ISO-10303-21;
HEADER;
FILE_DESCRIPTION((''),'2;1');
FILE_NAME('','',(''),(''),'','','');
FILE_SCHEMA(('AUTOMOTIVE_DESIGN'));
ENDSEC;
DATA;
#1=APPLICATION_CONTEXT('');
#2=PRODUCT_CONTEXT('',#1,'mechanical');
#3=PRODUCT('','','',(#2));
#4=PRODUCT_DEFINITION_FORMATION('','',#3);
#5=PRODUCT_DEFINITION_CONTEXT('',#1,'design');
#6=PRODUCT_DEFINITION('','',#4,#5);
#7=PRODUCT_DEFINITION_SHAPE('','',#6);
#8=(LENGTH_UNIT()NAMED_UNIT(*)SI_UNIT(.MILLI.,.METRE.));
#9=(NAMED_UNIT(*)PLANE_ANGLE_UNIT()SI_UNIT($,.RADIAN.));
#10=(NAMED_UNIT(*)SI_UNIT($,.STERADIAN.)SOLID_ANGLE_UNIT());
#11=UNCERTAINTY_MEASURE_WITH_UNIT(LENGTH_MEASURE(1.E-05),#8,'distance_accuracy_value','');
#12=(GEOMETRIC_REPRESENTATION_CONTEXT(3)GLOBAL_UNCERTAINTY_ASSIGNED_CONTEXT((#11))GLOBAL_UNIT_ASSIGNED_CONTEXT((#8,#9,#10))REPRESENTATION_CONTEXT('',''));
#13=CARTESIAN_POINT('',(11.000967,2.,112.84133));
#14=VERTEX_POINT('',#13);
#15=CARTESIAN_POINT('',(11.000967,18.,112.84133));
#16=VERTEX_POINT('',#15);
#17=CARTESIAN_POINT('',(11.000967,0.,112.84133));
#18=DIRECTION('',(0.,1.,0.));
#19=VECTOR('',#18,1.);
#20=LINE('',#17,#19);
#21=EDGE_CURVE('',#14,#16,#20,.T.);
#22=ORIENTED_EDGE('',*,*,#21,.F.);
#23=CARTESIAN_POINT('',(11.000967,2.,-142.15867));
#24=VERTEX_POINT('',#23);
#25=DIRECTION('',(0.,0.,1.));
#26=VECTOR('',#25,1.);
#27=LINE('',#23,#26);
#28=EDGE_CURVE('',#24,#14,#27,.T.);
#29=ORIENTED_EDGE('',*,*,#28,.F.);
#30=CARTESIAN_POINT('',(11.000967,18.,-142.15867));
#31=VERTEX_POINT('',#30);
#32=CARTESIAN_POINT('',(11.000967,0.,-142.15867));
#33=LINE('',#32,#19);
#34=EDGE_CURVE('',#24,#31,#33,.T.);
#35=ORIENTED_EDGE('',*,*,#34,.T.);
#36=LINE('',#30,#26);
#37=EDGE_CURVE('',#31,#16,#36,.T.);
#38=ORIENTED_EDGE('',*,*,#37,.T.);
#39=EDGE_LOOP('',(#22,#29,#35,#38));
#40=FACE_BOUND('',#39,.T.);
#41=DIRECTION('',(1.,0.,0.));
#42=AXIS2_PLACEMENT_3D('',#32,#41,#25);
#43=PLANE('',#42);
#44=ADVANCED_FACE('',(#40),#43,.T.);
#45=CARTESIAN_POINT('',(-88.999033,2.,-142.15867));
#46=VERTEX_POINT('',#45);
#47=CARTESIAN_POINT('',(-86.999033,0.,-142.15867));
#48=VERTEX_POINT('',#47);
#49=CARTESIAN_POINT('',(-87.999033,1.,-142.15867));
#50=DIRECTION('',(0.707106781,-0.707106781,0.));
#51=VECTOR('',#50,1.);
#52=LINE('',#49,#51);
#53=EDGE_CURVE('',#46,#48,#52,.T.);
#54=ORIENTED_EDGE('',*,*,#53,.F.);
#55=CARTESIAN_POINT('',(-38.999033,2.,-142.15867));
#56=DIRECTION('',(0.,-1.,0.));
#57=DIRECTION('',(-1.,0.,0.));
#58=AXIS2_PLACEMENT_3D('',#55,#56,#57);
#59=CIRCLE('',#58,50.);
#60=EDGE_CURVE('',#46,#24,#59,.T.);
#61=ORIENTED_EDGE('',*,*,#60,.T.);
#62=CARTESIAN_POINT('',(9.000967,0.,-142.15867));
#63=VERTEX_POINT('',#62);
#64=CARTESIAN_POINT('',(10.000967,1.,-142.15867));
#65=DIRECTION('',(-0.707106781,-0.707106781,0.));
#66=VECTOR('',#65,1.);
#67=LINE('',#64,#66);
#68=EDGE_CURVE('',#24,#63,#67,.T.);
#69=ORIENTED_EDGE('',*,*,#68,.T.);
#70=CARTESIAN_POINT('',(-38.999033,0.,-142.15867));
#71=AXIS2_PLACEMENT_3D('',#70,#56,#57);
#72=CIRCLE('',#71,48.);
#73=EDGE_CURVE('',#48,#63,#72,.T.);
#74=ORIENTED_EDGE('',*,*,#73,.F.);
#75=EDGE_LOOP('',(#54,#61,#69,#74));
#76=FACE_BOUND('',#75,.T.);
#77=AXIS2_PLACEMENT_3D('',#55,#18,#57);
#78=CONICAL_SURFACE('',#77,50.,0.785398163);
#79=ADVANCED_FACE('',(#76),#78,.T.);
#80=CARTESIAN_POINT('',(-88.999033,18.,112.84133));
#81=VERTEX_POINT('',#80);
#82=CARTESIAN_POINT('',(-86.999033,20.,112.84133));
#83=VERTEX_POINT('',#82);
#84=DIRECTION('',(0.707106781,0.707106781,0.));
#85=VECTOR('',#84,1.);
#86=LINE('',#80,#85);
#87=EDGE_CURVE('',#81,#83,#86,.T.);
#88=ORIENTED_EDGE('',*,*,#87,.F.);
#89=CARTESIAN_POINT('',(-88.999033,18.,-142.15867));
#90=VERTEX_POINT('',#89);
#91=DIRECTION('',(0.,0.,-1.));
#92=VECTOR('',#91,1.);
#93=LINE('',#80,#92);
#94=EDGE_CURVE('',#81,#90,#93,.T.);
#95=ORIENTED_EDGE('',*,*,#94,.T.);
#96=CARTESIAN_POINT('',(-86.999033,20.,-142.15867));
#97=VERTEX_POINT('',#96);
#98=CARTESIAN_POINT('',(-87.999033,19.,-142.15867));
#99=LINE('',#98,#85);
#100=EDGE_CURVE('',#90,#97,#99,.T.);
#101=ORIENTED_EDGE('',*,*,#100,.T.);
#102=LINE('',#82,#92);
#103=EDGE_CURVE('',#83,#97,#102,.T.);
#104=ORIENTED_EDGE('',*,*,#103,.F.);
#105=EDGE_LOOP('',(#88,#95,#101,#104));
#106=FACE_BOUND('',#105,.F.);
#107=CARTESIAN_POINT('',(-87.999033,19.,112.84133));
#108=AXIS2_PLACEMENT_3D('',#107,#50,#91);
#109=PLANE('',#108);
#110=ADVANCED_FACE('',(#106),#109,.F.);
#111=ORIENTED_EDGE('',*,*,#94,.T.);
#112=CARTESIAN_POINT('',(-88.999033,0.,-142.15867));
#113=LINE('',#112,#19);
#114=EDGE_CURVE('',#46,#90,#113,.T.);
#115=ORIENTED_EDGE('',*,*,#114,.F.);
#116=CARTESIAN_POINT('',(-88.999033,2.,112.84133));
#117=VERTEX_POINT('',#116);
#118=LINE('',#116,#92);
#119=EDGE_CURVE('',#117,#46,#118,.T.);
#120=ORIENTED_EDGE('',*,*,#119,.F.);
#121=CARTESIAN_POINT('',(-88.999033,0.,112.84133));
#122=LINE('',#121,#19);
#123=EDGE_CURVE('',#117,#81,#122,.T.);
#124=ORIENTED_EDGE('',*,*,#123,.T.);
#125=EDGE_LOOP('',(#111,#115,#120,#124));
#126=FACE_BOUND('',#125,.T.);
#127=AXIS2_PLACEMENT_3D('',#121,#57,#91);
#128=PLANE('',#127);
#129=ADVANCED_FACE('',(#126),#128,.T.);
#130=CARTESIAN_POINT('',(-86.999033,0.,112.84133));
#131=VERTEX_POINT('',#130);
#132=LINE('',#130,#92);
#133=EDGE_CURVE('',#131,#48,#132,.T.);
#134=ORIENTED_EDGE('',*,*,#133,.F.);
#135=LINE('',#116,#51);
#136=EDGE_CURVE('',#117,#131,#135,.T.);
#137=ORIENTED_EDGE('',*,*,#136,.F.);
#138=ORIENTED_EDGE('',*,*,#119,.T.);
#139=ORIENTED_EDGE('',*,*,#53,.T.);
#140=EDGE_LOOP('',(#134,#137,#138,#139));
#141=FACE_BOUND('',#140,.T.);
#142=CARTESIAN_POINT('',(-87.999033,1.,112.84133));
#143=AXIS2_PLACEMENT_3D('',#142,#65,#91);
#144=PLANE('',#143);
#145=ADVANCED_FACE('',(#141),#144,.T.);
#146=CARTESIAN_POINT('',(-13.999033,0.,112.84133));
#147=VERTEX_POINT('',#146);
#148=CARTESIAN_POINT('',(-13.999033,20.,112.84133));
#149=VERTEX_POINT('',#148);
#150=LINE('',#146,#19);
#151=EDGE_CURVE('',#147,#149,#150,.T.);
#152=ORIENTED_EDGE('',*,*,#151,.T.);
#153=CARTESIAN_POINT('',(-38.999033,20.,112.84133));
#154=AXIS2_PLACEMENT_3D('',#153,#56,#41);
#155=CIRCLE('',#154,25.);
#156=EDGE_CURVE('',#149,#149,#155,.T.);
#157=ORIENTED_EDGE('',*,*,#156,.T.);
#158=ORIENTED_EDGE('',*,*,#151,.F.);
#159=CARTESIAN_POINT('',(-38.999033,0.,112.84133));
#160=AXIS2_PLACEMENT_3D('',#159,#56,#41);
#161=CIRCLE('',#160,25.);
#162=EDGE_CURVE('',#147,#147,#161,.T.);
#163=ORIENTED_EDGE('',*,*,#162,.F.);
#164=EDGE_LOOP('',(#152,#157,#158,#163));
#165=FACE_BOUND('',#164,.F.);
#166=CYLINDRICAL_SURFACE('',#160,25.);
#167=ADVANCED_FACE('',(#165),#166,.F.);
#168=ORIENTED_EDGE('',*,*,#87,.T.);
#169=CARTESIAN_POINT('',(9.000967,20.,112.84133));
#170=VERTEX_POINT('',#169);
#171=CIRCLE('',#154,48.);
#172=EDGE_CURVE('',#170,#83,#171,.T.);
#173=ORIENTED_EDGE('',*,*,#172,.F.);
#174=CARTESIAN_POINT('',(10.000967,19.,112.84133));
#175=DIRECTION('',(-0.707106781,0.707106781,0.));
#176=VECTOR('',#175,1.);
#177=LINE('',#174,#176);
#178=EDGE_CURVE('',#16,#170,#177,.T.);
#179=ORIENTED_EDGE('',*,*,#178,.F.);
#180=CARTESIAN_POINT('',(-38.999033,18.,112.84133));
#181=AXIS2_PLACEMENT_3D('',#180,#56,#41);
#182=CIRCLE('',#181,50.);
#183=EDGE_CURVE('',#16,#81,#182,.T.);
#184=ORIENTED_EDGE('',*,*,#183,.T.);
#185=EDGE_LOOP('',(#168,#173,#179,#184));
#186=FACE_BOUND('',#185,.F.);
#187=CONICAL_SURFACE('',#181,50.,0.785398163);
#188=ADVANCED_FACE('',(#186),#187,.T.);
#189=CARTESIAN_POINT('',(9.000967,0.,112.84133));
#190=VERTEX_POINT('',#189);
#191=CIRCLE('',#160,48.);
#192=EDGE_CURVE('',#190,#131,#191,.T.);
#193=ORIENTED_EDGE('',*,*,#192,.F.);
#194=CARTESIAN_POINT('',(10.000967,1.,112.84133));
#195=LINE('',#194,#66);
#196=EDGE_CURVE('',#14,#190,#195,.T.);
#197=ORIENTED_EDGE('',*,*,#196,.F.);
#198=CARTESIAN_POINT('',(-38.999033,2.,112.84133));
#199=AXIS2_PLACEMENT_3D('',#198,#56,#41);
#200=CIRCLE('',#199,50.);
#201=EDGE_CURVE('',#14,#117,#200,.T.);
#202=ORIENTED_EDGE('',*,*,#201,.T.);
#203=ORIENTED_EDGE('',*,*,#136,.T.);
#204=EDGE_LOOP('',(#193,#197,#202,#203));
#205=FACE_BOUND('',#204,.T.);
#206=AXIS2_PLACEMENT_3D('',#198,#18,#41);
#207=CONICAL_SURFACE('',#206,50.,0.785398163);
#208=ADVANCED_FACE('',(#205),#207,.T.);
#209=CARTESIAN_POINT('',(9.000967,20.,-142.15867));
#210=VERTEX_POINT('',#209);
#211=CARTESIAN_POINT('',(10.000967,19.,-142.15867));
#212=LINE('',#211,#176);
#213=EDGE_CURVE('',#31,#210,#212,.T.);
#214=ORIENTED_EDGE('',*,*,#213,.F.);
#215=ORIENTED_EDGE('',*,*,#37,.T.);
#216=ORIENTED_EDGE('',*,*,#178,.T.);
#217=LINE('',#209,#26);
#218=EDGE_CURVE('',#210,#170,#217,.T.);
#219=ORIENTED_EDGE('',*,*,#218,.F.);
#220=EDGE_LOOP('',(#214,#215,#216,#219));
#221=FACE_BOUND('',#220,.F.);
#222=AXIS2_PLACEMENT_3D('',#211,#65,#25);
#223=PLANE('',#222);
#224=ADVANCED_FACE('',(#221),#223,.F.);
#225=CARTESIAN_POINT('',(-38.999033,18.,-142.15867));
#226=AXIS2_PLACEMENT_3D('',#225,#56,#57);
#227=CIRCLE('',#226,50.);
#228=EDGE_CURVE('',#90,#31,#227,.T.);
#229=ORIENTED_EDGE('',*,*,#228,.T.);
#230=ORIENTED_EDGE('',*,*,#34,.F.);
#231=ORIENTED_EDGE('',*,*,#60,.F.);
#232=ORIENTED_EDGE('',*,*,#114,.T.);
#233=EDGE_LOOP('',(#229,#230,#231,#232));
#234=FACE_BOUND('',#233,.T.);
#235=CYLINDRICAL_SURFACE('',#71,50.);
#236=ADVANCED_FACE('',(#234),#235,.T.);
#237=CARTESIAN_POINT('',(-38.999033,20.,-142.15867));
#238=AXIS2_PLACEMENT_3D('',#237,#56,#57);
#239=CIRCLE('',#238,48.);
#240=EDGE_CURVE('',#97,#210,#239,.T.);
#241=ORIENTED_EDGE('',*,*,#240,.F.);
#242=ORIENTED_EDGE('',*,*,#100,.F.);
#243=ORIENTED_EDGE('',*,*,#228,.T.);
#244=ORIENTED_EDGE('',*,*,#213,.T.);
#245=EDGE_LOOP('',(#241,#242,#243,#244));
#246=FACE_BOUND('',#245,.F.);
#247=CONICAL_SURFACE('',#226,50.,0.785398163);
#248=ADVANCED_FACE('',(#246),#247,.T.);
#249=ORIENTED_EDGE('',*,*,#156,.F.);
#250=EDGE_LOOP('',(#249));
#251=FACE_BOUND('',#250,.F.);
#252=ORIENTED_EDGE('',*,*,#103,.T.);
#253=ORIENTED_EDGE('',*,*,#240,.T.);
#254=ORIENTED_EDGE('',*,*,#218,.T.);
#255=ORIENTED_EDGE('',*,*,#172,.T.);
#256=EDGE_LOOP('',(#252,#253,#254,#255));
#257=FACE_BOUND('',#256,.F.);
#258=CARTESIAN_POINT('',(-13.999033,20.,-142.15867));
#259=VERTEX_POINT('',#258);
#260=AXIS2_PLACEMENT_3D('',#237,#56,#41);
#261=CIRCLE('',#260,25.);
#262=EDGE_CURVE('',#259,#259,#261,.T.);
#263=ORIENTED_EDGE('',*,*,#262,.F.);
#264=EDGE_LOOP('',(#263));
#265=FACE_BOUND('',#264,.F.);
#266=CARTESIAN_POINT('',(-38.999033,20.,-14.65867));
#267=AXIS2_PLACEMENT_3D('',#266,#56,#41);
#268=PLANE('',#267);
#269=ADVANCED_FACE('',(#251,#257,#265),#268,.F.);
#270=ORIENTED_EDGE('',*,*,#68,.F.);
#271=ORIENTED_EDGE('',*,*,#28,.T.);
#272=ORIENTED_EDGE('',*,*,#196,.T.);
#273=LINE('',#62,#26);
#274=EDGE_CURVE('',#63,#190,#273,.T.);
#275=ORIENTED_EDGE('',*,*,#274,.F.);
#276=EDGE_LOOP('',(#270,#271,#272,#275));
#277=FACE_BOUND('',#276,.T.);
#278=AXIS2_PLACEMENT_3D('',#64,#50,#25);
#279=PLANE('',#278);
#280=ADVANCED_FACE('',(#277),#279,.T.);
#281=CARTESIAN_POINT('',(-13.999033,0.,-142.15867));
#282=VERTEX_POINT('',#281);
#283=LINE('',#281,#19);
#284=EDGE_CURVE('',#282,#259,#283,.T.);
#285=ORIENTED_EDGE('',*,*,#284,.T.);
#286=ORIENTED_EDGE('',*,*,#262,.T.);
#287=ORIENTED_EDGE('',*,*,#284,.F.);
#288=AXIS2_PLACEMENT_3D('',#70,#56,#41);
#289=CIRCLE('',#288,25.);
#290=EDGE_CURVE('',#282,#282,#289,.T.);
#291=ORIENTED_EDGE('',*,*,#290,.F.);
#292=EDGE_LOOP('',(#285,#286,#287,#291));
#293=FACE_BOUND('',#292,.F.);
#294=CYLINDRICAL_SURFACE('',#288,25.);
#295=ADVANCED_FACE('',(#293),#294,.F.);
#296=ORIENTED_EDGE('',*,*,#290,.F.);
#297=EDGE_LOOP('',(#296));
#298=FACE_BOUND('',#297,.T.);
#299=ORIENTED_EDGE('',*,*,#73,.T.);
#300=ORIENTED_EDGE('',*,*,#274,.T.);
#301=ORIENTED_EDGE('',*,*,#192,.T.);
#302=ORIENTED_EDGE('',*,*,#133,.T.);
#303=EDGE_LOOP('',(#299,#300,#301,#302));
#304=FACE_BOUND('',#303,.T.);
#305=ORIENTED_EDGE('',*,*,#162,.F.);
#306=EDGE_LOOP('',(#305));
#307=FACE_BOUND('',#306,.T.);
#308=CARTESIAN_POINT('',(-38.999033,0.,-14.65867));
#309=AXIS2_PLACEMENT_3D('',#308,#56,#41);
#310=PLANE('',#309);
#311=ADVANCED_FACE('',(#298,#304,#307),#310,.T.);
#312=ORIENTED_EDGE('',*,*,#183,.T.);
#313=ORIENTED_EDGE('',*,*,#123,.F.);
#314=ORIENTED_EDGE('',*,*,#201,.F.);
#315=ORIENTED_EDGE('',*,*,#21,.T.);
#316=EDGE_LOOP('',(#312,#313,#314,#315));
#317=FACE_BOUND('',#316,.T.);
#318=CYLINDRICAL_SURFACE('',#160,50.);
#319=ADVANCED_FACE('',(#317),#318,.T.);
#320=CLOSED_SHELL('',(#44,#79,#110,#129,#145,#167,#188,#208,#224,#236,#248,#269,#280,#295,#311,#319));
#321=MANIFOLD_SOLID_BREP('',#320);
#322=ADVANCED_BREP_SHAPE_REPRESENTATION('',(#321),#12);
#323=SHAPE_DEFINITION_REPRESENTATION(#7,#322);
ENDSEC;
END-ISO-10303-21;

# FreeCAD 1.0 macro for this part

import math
import FreeCAD as App
import Part
import Sketcher
Q = App.Units.Quantity


def edges_at(feature, points):
    """Names of the edges that pass closest to the given points."""
    edges = feature.Shape.Edges
    near = lambda p: min(range(len(edges)), key=lambda i: edges[i].distToShape(Part.Vertex(*p))[0])
    return sorted({f"Edge{near(p) + 1}" for p in points})

doc = App.newDocument("Part")
body = doc.addObject("PartDesign::Body", "Body")

sketch1 = doc.addObject("Sketcher::SketchObject", "Sketch")
body.addObject(sketch1)
sketch1.AttachmentSupport = (doc.XZ_Plane, [""])
sketch1.MapMode = "FlatFace"
sketch1.addGeometry([
    Part.ArcOfCircle(Part.Circle(App.Vector(-39, 113, 0), App.Vector(0, 0, 1), 50), math.radians(0), math.radians(180)),
    Part.LineSegment(App.Vector(-89, 113, 0), App.Vector(-89, -142, 0)),
    Part.ArcOfCircle(Part.Circle(App.Vector(-39, -142, 0), App.Vector(0, 0, 1), 50), math.radians(180), math.radians(360)),
    Part.LineSegment(App.Vector(11, -142, 0), App.Vector(11, 113, 0)),
    Part.Circle(App.Vector(-39, -142, 0), App.Vector(0, 0, 1), 25),
    Part.Circle(App.Vector(-39, 113, 0), App.Vector(0, 0, 1), 25),
], False)
sketch1.addConstraint([
    Sketcher.Constraint("Tangent", 0, 2, 1, 1),
    Sketcher.Constraint("Tangent", 1, 2, 2, 1),
    Sketcher.Constraint("Tangent", 2, 2, 3, 1),
    Sketcher.Constraint("Tangent", 3, 2, 0, 1),
    Sketcher.Constraint("Vertical", 1),
    Sketcher.Constraint("Vertical", 3),
    Sketcher.Constraint("Coincident", 4, 3, 2, 3),
    Sketcher.Constraint("Coincident", 5, 3, 0, 3),
    Sketcher.Constraint("Equal", 4, 5),
    Sketcher.Constraint("Diameter", 4, Q("50 mm")),
    Sketcher.Constraint("Radius", 0, Q("50 mm")),
    Sketcher.Constraint("DistanceY", 1, 2, 1, 1, Q("255 mm")),
    Sketcher.Constraint("DistanceY", -1, 1, 0, 3, Q("112.84133 mm")),
    Sketcher.Constraint("DistanceX", 0, 3, -1, 1, Q("38.999033 mm")),
])
pad1 = doc.addObject("PartDesign::Pad", "Pad")
body.addObject(pad1)
pad1.Profile = sketch1
pad1.Length = 20
pad1.Reversed = True
doc.recompute()

chamfer = doc.addObject("PartDesign::Chamfer", "Chamfer")
body.addObject(chamfer)
chamfer.Base = (pad1, edges_at(pad1, [
    (11.001, 0, -14.659),
    (11.001, 20, -14.659),
    (-38.999, 20, 162.841),
    (-38.999, 0, 162.841),
    (-88.999, 20, -14.659),
    (-38.999, 20, -192.159),
    (-38.999, 0, -192.159),
    (-88.999, 0, -14.659),
]))
chamfer.ChamferType = "Two distances"
chamfer.Size = 2
chamfer.Size2 = 2

doc.recompute()
